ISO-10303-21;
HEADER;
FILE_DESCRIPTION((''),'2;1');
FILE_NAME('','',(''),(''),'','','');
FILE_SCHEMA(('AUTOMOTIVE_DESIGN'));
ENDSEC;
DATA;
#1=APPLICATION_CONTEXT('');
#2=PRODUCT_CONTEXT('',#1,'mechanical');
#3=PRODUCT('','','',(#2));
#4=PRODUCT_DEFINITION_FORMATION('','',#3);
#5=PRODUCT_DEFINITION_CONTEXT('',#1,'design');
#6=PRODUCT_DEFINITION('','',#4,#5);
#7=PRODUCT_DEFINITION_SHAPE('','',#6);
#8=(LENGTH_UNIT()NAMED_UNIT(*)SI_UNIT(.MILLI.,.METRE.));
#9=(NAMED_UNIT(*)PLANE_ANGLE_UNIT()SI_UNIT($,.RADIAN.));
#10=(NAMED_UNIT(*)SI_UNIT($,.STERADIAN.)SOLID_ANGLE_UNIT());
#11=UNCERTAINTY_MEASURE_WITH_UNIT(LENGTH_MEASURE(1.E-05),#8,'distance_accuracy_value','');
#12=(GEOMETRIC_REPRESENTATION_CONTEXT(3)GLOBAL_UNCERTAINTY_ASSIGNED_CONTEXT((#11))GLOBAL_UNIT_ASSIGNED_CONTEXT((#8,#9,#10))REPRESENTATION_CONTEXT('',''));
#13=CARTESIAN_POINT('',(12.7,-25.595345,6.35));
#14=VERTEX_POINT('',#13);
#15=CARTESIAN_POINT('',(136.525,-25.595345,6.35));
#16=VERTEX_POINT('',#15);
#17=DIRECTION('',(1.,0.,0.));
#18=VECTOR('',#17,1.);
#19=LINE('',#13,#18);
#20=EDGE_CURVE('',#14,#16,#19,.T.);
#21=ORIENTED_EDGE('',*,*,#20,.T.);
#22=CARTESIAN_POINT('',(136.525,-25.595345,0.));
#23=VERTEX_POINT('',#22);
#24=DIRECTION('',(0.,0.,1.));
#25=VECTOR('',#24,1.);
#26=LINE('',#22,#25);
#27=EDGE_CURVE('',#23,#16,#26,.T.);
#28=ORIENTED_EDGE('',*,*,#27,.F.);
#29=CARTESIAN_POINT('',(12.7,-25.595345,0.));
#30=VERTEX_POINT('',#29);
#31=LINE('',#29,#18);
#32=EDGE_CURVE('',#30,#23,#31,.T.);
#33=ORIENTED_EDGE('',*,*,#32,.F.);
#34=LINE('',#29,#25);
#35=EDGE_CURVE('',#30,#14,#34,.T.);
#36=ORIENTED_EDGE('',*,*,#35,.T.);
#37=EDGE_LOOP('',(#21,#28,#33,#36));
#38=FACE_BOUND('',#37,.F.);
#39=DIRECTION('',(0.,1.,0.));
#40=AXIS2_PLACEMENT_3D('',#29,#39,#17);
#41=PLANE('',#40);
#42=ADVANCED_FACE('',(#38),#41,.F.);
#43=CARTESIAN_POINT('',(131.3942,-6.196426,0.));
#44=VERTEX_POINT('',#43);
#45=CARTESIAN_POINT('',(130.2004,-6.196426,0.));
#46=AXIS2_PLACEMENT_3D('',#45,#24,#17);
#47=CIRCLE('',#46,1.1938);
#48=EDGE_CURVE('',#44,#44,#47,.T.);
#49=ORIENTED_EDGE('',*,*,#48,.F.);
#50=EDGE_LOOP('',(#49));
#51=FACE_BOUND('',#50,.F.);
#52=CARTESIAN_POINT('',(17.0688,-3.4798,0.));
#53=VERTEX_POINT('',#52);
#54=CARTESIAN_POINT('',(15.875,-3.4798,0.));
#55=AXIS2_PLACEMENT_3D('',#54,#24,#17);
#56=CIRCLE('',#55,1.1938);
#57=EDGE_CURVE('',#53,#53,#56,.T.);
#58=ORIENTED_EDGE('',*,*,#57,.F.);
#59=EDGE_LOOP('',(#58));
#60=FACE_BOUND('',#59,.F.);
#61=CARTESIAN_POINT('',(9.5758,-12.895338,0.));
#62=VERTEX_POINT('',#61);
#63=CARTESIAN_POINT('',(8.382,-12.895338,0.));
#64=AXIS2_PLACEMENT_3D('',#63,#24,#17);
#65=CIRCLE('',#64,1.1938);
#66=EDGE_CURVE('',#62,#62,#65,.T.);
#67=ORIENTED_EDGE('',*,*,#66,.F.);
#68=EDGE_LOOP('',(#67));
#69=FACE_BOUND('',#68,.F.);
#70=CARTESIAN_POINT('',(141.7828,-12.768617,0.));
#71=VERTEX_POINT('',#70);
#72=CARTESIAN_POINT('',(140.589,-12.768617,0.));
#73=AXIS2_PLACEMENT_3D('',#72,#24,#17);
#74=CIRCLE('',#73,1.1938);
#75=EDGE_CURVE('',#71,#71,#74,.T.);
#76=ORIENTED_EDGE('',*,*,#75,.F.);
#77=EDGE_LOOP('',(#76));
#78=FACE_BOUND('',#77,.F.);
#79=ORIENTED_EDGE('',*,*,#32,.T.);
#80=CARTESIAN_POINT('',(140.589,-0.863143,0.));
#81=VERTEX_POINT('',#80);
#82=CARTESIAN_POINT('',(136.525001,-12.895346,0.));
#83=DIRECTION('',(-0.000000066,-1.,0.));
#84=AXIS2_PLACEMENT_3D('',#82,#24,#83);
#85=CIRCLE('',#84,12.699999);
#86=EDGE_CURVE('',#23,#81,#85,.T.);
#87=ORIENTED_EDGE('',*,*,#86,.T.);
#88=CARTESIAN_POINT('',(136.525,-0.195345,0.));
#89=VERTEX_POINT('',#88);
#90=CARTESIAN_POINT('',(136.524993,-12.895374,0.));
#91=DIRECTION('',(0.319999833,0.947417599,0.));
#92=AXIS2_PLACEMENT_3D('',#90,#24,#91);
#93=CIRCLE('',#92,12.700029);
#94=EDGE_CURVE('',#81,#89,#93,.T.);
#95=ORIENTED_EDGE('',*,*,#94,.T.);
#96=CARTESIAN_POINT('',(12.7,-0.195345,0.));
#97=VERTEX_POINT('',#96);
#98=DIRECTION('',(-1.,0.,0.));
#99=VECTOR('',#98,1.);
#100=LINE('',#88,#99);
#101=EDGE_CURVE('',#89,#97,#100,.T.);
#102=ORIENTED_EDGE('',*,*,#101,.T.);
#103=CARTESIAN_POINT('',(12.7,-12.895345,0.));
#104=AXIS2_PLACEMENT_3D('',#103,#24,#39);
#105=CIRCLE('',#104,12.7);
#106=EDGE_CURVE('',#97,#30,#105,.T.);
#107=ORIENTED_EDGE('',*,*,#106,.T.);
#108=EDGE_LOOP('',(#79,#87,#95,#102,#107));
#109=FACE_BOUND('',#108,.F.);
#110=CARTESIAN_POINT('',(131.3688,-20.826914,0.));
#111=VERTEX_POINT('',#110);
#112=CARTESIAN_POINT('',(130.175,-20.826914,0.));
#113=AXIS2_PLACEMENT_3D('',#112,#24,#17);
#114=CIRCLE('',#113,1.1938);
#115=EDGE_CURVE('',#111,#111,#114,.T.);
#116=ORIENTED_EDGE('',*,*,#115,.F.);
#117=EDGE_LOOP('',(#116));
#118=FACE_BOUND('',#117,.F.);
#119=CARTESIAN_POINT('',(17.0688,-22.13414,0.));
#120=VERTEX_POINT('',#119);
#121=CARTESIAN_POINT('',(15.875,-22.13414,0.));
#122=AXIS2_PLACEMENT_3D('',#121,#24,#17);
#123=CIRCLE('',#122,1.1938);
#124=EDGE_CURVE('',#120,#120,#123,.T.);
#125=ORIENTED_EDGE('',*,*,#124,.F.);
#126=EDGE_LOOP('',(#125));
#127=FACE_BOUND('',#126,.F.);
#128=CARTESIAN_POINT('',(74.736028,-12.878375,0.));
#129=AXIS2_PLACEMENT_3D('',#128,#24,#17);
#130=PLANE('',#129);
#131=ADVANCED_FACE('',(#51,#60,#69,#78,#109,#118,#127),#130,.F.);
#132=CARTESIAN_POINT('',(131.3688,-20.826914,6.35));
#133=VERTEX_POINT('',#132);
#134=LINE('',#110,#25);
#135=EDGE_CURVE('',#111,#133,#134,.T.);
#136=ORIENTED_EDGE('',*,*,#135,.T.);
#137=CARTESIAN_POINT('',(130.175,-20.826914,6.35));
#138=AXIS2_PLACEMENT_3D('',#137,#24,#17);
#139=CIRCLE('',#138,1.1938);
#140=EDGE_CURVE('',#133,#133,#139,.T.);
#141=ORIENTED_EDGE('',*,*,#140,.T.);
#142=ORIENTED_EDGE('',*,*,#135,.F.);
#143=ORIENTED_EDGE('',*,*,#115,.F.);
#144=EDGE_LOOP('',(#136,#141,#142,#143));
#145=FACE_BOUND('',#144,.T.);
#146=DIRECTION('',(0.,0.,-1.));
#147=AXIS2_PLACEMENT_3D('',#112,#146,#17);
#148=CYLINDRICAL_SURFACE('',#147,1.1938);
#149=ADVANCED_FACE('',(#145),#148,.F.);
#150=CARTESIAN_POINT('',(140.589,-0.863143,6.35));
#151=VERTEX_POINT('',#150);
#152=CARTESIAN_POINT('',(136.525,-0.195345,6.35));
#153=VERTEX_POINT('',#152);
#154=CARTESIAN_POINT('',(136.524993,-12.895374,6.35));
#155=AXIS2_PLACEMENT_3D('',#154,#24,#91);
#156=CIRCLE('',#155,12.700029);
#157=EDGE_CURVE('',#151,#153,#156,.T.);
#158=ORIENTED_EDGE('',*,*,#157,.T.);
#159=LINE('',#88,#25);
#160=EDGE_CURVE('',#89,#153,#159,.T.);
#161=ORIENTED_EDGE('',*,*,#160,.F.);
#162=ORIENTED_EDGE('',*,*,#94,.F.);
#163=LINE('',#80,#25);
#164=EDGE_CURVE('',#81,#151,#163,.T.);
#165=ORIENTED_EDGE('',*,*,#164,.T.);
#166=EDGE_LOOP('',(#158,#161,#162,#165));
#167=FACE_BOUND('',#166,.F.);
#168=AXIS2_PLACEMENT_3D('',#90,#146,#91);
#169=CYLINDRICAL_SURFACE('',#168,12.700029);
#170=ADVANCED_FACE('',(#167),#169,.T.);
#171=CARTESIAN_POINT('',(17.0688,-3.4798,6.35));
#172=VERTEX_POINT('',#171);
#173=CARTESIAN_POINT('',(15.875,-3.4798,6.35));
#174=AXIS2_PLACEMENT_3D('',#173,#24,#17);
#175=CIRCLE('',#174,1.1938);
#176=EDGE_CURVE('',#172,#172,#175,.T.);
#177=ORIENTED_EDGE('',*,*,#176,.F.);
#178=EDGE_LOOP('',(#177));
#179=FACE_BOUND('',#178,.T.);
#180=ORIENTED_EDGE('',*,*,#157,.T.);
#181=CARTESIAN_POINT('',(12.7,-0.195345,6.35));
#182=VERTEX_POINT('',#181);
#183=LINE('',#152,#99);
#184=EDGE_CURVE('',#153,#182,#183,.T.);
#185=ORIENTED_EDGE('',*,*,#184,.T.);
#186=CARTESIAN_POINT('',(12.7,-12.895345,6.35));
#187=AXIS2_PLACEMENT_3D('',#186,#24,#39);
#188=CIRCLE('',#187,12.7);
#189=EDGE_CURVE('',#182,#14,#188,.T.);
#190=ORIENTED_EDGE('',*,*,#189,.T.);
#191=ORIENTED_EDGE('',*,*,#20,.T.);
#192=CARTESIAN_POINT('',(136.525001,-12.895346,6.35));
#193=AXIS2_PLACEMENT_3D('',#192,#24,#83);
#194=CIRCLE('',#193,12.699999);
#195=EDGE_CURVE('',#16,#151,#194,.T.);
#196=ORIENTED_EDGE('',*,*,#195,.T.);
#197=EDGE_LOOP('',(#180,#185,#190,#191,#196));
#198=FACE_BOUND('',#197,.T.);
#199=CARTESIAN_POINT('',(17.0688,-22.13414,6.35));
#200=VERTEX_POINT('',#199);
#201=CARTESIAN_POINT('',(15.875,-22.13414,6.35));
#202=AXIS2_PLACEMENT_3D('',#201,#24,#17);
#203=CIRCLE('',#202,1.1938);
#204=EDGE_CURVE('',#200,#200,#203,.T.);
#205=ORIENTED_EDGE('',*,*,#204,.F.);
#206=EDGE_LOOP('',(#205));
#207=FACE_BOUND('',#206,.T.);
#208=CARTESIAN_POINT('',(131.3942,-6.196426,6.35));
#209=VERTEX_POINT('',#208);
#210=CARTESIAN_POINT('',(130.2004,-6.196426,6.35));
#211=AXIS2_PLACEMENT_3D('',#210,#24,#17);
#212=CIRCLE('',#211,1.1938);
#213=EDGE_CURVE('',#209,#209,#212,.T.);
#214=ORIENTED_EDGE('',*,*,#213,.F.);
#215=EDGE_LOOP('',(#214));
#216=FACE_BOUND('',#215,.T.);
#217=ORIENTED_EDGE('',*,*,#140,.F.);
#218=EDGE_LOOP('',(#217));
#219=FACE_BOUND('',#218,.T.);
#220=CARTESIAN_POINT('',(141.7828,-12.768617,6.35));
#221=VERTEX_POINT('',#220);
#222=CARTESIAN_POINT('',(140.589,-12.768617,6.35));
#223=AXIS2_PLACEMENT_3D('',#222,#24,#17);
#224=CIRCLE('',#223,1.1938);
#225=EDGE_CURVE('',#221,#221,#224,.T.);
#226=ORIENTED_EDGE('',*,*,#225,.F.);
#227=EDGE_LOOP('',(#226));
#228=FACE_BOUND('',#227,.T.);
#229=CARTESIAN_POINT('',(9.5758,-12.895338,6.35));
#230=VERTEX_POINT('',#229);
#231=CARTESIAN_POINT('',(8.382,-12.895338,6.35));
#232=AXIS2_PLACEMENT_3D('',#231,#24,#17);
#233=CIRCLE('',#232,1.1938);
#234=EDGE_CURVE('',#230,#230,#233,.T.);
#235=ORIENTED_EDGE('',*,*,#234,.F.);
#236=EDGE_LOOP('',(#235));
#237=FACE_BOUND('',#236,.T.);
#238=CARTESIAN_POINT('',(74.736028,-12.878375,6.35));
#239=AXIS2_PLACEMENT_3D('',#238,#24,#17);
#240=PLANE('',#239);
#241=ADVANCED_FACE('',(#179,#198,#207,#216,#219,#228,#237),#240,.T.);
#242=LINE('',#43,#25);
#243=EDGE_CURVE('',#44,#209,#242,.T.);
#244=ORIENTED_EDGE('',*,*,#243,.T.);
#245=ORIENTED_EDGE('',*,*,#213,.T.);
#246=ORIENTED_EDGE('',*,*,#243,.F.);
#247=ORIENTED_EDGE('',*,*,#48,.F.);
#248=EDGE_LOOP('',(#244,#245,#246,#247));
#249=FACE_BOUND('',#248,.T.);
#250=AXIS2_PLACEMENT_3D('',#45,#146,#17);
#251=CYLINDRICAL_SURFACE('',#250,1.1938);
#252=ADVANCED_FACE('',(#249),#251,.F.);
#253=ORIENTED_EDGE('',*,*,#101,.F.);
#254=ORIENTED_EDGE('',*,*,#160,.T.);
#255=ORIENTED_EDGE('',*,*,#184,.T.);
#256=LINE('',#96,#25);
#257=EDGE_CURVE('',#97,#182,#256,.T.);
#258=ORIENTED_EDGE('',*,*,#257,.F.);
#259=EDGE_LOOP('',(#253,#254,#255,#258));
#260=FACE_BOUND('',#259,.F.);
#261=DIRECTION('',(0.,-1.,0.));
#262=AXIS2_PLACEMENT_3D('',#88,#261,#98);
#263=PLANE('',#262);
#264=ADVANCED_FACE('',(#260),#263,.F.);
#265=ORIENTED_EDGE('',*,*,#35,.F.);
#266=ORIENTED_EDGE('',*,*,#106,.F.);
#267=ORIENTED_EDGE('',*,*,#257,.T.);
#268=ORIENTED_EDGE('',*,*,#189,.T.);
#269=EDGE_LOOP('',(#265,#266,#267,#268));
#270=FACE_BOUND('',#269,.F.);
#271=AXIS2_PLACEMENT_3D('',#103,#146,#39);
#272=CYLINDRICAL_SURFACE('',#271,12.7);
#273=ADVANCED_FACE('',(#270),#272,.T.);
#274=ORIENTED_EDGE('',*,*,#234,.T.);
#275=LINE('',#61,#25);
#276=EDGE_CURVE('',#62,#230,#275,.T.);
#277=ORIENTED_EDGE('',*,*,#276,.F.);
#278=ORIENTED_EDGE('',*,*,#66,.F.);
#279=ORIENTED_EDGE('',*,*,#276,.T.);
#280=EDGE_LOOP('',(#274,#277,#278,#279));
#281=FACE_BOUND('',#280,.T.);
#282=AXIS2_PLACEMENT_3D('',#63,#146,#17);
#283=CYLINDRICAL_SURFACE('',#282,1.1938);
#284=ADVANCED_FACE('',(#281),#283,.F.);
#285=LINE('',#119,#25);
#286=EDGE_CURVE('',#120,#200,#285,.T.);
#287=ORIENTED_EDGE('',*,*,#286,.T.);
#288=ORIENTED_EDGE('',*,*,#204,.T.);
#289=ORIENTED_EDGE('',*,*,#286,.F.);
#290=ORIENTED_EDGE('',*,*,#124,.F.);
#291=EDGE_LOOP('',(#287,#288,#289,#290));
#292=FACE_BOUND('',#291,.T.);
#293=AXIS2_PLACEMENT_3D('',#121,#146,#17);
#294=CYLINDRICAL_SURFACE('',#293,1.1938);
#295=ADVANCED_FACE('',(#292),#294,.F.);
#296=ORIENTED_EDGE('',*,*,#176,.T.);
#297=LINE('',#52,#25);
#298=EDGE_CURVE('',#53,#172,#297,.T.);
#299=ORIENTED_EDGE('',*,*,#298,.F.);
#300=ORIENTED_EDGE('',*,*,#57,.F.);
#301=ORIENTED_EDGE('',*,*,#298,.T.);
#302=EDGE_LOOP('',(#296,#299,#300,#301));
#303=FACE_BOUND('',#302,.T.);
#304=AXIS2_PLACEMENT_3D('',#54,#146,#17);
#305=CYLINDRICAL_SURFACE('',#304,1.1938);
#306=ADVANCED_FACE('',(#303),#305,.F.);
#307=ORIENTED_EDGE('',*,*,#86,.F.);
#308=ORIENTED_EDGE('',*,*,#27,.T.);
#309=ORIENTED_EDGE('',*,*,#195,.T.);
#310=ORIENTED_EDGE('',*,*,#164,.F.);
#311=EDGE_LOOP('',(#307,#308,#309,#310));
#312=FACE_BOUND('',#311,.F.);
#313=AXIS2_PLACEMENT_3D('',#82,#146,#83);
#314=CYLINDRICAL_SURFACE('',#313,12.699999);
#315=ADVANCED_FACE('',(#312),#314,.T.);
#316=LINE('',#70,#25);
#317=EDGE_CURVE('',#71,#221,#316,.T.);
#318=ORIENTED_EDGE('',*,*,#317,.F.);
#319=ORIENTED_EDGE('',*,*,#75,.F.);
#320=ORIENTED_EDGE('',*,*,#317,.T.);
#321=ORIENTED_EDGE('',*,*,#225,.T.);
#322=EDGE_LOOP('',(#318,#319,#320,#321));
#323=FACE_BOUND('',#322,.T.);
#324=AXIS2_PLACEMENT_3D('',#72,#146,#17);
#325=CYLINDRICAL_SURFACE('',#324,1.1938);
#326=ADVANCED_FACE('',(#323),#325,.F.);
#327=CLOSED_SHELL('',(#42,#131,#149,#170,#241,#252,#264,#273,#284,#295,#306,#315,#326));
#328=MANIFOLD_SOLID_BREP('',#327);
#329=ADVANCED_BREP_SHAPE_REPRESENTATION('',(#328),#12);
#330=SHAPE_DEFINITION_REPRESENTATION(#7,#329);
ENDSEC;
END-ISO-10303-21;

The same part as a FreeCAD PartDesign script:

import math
import FreeCAD as App
import Part
import Sketcher

V = App.Vector
Q = App.Units.Quantity

doc = App.newDocument("Part")
body = doc.addObject("PartDesign::Body", "Body")

# Sketch on XY plane
sketch1 = doc.addObject("Sketcher::SketchObject", "Sketch")
body.addObject(sketch1)
sketch1.AttachmentSupport = (doc.XY_Plane, [""])
sketch1.MapMode = "FlatFace"
sketch1.addGeometry([
    Part.LineSegment(V(12.7, -25.595345, 0), V(136.525, -25.595345, 0)),  # 0
    Part.ArcOfCircle(Part.Circle(V(136.525001, -12.895346, 0), V(0, 0, 1), 12.699999), math.radians(-90.000004), math.radians(71.337078)),  # 1
    Part.ArcOfCircle(Part.Circle(V(136.524993, -12.895374, 0), V(0, 0, 1), 12.700029), math.radians(71.337085), math.radians(89.999968)),  # 2
    Part.LineSegment(V(136.525, -0.195345, 0), V(12.7, -0.195345, 0)),  # 3
    Part.ArcOfCircle(Part.Circle(V(12.7, -12.895345, 0), V(0, 0, 1), 12.7), math.radians(90), math.radians(270)),  # 4
    Part.Circle(V(15.875, -22.13414, 0), V(0, 0, 1), 1.1938),  # 5
    Part.Circle(V(8.382, -12.895338, 0), V(0, 0, 1), 1.1938),  # 6
    Part.Circle(V(130.175, -20.826914, 0), V(0, 0, 1), 1.1938),  # 7
    Part.Circle(V(15.875, -3.4798, 0), V(0, 0, 1), 1.1938),  # 8
    Part.Circle(V(140.589, -12.768617, 0), V(0, 0, 1), 1.1938),  # 9
    Part.Circle(V(130.2004, -6.196426, 0), V(0, 0, 1), 1.1938),  # 10
], False)
sketch1.addConstraint([
    Sketcher.Constraint("Coincident", 0, 2, 1, 1),
    Sketcher.Constraint("Coincident", 1, 2, 2, 1),
    Sketcher.Constraint("Coincident", 2, 2, 3, 1),
    Sketcher.Constraint("Coincident", 3, 2, 4, 1),
    Sketcher.Constraint("Coincident", 4, 2, 0, 1),
    Sketcher.Constraint("Horizontal", 0),
    Sketcher.Constraint("Horizontal", 3),
    Sketcher.Constraint("Radius", 1, Q("0.5 in")),
    Sketcher.Constraint("Radius", 4, Q("0.5 in")),
    Sketcher.Constraint("Diameter", 5, Q("0.094 in")),
    Sketcher.Constraint("Diameter", 6, Q("0.094 in")),
    Sketcher.Constraint("Diameter", 7, Q("0.094 in")),
    Sketcher.Constraint("Diameter", 8, Q("0.094 in")),
    Sketcher.Constraint("Diameter", 9, Q("0.094 in")),
    Sketcher.Constraint("Diameter", 10, Q("0.094 in")),
    Sketcher.Constraint("DistanceX", -1, 1, 4, 3, Q("0.5 in")),
    Sketcher.Constraint("DistanceX", -1, 1, 3, 2, Q("0.5 in")),
    Sketcher.Constraint("DistanceX", -1, 1, 4, 2, Q("0.5 in")),
    Sketcher.Constraint("DistanceX", 5, 3, 7, 3, Q("4.5 in")),
    Sketcher.Constraint("DistanceX", 8, 3, 7, 3, Q("4.5 in")),
    Sketcher.Constraint("DistanceX", 0, 1, 0, 2, Q("4.875 in")),
    Sketcher.Constraint("DistanceX", 3, 2, 3, 1, Q("4.875 in")),
    Sketcher.Constraint("DistanceX", -1, 1, 6, 3, Q("0.33 in")),
    Sketcher.Constraint("DistanceX", 5, 3, 1, 3, Q("4.75 in")),
    Sketcher.Constraint("DistanceX", 1, 3, 9, 3, Q("0.16 in")),
    Sketcher.Constraint("DistanceX", 7, 3, 0, 2, Q("0.25 in")),
    Sketcher.Constraint("DistanceX", 1, 3, 1, 2, Q("0.16 in")),
    Sketcher.Constraint("DistanceY", 8, 3, -1, 1, Q("0.137 in")),
    Sketcher.Constraint("DistanceX", -1, 1, 10, 3, Q("5.126 in")),
    Sketcher.Constraint("Radius", 2, 12.700029),
    Sketcher.Constraint("DistanceY", 5, 3, 6, 3, 9.238802),
    Sketcher.Constraint("DistanceY", 5, 3, -1, 1, 22.13414),
    Sketcher.Constraint("DistanceY", 7, 3, 2, 3, 7.93154),
    Sketcher.Constraint("DistanceY", 1, 3, 9, 3, 0.126729),
    Sketcher.Constraint("DistanceY", 1, 3, 10, 3, 6.69892),
    Sketcher.Constraint("DistanceY", 1, 3, -1, 1, 12.895346),
])
pad1 = doc.addObject("PartDesign::Pad", "Pad")
body.addObject(pad1)
pad1.Profile = sketch1
pad1.Length = Q("0.25 in")

doc.recompute()
